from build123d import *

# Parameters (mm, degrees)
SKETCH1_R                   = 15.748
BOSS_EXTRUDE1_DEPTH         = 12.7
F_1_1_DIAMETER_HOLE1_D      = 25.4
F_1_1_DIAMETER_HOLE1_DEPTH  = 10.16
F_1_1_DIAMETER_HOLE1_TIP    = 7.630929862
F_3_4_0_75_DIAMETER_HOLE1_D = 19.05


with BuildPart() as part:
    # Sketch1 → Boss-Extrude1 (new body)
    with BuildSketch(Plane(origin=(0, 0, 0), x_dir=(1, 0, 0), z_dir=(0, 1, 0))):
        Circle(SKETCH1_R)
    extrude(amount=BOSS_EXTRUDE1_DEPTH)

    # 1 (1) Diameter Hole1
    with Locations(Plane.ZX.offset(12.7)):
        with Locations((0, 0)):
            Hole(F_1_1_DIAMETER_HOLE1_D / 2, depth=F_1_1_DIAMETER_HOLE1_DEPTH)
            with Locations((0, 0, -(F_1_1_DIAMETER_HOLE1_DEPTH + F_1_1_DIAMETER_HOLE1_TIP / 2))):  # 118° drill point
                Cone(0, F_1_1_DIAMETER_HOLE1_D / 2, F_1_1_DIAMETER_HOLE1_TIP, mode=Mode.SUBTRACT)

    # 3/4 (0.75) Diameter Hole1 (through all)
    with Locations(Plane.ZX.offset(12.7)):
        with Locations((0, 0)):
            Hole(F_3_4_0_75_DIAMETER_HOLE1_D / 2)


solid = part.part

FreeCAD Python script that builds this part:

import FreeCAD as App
import Part
import Sketcher
Q = App.Units.Quantity

doc = App.newDocument("Part")
params = doc.addObject("Spreadsheet::Sheet", "Params")
for row, (alias, value) in enumerate([
    ("sketch1_diameter", "1.24 in"),
    ("pad1_length", "0.5 in"),
    ("sketch2_diameter", "1 in"),
    ("hole_diameter", "1 in"),
    ("hole_depth", "0.4 in"),
    ("sketch3_diameter", "0.75 in"),
    ("hole2_diameter", "0.75 in"),
], start=1):
    params.set(f"A{row}", alias)
    params.set(f"B{row}", "=" + value)
    params.setAlias(f"B{row}", alias)

body = doc.addObject("PartDesign::Body", "Body")

# Sketch on XZ plane
sketch1 = doc.addObject("Sketcher::SketchObject", "Sketch")
body.addObject(sketch1)
sketch1.AttachmentSupport = (doc.XZ_Plane, [""])
sketch1.MapMode = "FlatFace"
sketch1.addGeometry(Part.Circle(App.Vector(0, 0, 0), App.Vector(0, 0, 1), 16), False)
sketch1.addConstraint([
    Sketcher.Constraint("Coincident", 0, 3, -1, 1),
    Sketcher.Constraint("Diameter", 0, Q("1.24 in")),
])
sketch1.setExpression("Constraints[1]", "Params.sketch1_diameter")
pad1 = doc.addObject("PartDesign::Pad", "Pad")
body.addObject(pad1)
pad1.Profile = sketch1
pad1.setExpression("Length", "Params.pad1_length")
pad1.Reversed = True

# Sketch on XZ plane
sketch2 = doc.addObject("Sketcher::SketchObject", "Sketch001")
body.addObject(sketch2)
sketch2.AttachmentSupport = (doc.XZ_Plane, [""])
sketch2.MapMode = "FlatFace"
sketch2.AttachmentOffset = App.Placement(App.Vector(0, 0, -0.5 * 25.4), App.Rotation())
sketch2.addGeometry(Part.Circle(App.Vector(0, 0, 0), App.Vector(0, 0, 1), 13), False)
sketch2.addConstraint([
    Sketcher.Constraint("Coincident", 0, 3, -1, 1),
    Sketcher.Constraint("Diameter", 0, Q("1 in")),
])
sketch2.setExpression("Constraints[1]", "Params.sketch2_diameter")
doc.recompute()
hole = doc.addObject("PartDesign::Hole", "Hole")
body.addObject(hole)
hole.Profile = sketch2
hole.ThreadType = "None"
hole.setExpression("Diameter", "Params.hole_diameter")
hole.DepthType = "Dimension"
hole.setExpression("Depth", "Params.hole_depth")
hole.DrillPoint = "Angled"
hole.DrillPointAngle = 118
hole.Reversed = True

# Sketch on XZ plane
sketch3 = doc.addObject("Sketcher::SketchObject", "Sketch002")
body.addObject(sketch3)
sketch3.AttachmentSupport = (doc.XZ_Plane, [""])
sketch3.MapMode = "FlatFace"
sketch3.AttachmentOffset = App.Placement(App.Vector(0, 0, -0.5 * 25.4), App.Rotation())
sketch3.addGeometry(Part.Circle(App.Vector(0, 0, 0), App.Vector(0, 0, 1), 10), False)
sketch3.addConstraint([
    Sketcher.Constraint("Coincident", 0, 3, -1, 1),
    Sketcher.Constraint("Diameter", 0, Q("0.75 in")),
])
sketch3.setExpression("Constraints[1]", "Params.sketch3_diameter")
doc.recompute()
hole2 = doc.addObject("PartDesign::Hole", "Hole001")
body.addObject(hole2)
hole2.Profile = sketch3
hole2.ThreadType = "None"
hole2.setExpression("Diameter", "Params.hole2_diameter")
hole2.DepthType = "ThroughAll"
hole2.Reversed = True

doc.recompute()
